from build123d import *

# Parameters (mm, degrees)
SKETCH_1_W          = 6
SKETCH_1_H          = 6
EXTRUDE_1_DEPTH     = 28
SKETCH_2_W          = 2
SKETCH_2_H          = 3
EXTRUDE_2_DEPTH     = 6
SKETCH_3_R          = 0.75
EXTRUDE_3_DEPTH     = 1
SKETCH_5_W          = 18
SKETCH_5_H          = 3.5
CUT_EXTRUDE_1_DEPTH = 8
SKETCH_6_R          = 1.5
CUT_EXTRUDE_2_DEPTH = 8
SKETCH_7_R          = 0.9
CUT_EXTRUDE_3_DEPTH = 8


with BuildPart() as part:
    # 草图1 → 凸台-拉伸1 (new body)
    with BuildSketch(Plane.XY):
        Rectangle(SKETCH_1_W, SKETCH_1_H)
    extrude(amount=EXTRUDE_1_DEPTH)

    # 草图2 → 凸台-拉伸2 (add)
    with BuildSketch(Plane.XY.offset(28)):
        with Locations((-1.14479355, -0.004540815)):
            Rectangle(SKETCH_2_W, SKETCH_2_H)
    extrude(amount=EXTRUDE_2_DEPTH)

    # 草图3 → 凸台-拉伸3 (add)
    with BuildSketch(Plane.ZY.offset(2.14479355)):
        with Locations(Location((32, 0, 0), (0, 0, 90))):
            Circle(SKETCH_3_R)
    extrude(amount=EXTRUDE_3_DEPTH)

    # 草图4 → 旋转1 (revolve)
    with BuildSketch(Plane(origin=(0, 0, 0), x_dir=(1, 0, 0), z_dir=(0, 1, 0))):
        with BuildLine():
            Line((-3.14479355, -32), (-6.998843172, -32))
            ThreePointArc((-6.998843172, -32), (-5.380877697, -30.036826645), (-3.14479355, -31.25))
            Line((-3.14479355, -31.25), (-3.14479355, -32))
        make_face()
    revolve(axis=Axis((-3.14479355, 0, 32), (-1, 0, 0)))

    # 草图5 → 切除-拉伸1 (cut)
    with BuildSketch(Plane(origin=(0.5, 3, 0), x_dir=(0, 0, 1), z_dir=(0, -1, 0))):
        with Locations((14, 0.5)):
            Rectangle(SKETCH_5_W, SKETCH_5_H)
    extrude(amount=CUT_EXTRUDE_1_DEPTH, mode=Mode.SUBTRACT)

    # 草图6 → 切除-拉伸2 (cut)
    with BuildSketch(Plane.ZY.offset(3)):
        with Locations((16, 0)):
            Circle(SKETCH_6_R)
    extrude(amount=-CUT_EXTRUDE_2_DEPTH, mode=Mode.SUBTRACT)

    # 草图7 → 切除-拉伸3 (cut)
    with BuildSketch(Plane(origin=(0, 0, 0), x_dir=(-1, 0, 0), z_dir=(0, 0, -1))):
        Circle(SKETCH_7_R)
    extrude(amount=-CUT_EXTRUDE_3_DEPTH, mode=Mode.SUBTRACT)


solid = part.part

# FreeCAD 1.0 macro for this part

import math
import FreeCAD as App
import Part
import Sketcher
from FreeCAD import Vector
Q = App.Units.Quantity

doc = App.newDocument("Part")
params = doc.addObject("Spreadsheet::Sheet", "Params")
for row, (alias, value) in enumerate([
    ("sketch1_width", "6 mm"),
    ("pad1_length", "28 mm"),
    ("sketch2_width", "2 mm"),
    ("sketch2_height", "3 mm"),
    ("pad2_length", "6 mm"),
    ("sketch3_diameter", "1.5 mm"),
    ("pad3_length", "1 mm"),
    ("sketch4_radius", "2 mm"),
    ("sketch4_height", "0.75 mm"),
    ("revolution_angle", "360 deg"),
    ("sketch5_height", "18 mm"),
    ("sketch5_width", "3.5 mm"),
    ("pocket1_length", "8 mm"),
    ("sketch6_diameter", "3 mm"),
    ("pocket2_length", "8 mm"),
    ("sketch7_diameter", "1.8 mm"),
    ("pocket3_length", "8 mm"),
], start=1):
    params.set(f"A{row}", alias)
    params.set(f"B{row}", "=" + value)
    params.setAlias(f"B{row}", alias)

body = doc.addObject("PartDesign::Body", "Body")

# Sketch on XY plane
sketch1 = doc.addObject("Sketcher::SketchObject", "Sketch")
body.addObject(sketch1)
sketch1.AttachmentSupport = (doc.XY_Plane, [""])
sketch1.MapMode = "FlatFace"
sketch1.addGeometry([
    Part.LineSegment(Vector(-3, 3, 0), Vector(-3, -3, 0)),
    Part.LineSegment(Vector(-3, -3, 0), Vector(3, -3, 0)),
    Part.LineSegment(Vector(3, -3, 0), Vector(3, 3, 0)),
    Part.LineSegment(Vector(3, 3, 0), Vector(-3, 3, 0)),
], False)
sketch1.addConstraint([
    Sketcher.Constraint("Coincident", 0, 2, 1, 1),
    Sketcher.Constraint("Coincident", 1, 2, 2, 1),
    Sketcher.Constraint("Coincident", 2, 2, 3, 1),
    Sketcher.Constraint("Coincident", 3, 2, 0, 1),
    Sketcher.Constraint("Vertical", 0),
    Sketcher.Constraint("Horizontal", 1),
    Sketcher.Constraint("Vertical", 2),
    Sketcher.Constraint("Horizontal", 3),
    Sketcher.Constraint("Symmetric", 0, 2, 2, 2, -1, 1),
    Sketcher.Constraint("Equal", 3, 0),
    Sketcher.Constraint("DistanceX", 1, 1, 1, 2, Q("6 mm")),
])
sketch1.setExpression("Constraints[10]", "Params.sketch1_width")
pad1 = doc.addObject("PartDesign::Pad", "Pad")
body.addObject(pad1)
pad1.Profile = sketch1
pad1.setExpression("Length", "Params.pad1_length")

# Sketch on XY plane
sketch2 = doc.addObject("Sketcher::SketchObject", "Sketch001")
body.addObject(sketch2)
sketch2.AttachmentSupport = (doc.XY_Plane, [""])
sketch2.MapMode = "FlatFace"
sketch2.AttachmentOffset = App.Placement(Vector(0, 0, 28), App.Rotation())
sketch2.addGeometry([
    Part.LineSegment(Vector(-2.1, 1.5, 0), Vector(-2.1, -1.5, 0)),
    Part.LineSegment(Vector(-2.1, -1.5, 0), Vector(-0.1, -1.5, 0)),
    Part.LineSegment(Vector(-0.1, -1.5, 0), Vector(-0.1, 1.5, 0)),
    Part.LineSegment(Vector(-0.1, 1.5, 0), Vector(-2.1, 1.5, 0)),
], False)
sketch2.addConstraint([
    Sketcher.Constraint("Coincident", 0, 2, 1, 1),
    Sketcher.Constraint("Coincident", 1, 2, 2, 1),
    Sketcher.Constraint("Coincident", 2, 2, 3, 1),
    Sketcher.Constraint("Coincident", 3, 2, 0, 1),
    Sketcher.Constraint("Vertical", 0),
    Sketcher.Constraint("Horizontal", 1),
    Sketcher.Constraint("Vertical", 2),
    Sketcher.Constraint("Horizontal", 3),
    Sketcher.Constraint("DistanceX", 1, 1, 1, 2, Q("2 mm")),
    Sketcher.Constraint("DistanceY", 0, 2, 0, 1, Q("3 mm")),
    Sketcher.Constraint("DistanceY", 0, 2, -1, 1, Q("1.504541 mm")),
    Sketcher.Constraint("DistanceX", 0, 2, -1, 1, Q("2.144794 mm")),
])
sketch2.setExpression("Constraints[8]", "Params.sketch2_width")
sketch2.setExpression("Constraints[9]", "Params.sketch2_height")
pad2 = doc.addObject("PartDesign::Pad", "Pad001")
body.addObject(pad2)
pad2.Profile = sketch2
pad2.setExpression("Length", "Params.pad2_length")

# Sketch on YZ plane
sketch3 = doc.addObject("Sketcher::SketchObject", "Sketch002")
body.addObject(sketch3)
sketch3.AttachmentSupport = (doc.YZ_Plane, [""])
sketch3.MapMode = "FlatFace"
sketch3.AttachmentOffset = App.Placement(Vector(0, 0, -2.144794), App.Rotation())
sketch3.addGeometry(Part.Circle(Vector(0, 32, 0), Vector(0, 0, 1), 0.8), False)
sketch3.addConstraint([
    Sketcher.Constraint("PointOnObject", 0, 3, -2),
    Sketcher.Constraint("Diameter", 0, Q("1.5 mm")),
    Sketcher.Constraint("DistanceY", -1, 1, 0, 3, Q("32 mm")),
])
sketch3.setExpression("Constraints[1]", "Params.sketch3_diameter")
pad3 = doc.addObject("PartDesign::Pad", "Pad002")
body.addObject(pad3)
pad3.Profile = sketch3
pad3.setExpression("Length", "Params.pad3_length")
pad3.Reversed = True

# Sketch on XZ plane
sketch4 = doc.addObject("Sketcher::SketchObject", "Sketch003")
body.addObject(sketch4)
sketch4.AttachmentSupport = (doc.XZ_Plane, [""])
sketch4.MapMode = "FlatFace"
sketch4.addGeometry([
    Part.LineSegment(Vector(-7, 32, 0), Vector(-3.1, 32, 0)),
    Part.LineSegment(Vector(-3.1, 32, 0), Vector(-3.1, 31.2, 0)),
    Part.ArcOfCircle(Part.Circle(Vector(-5, 32, 0), Vector(0, 0, 1), 2), math.radians(180), math.radians(338)),
], False)
sketch4.addGeometry(Part.LineSegment(Vector(-3.1, 32, 0), Vector(-7, 32, 0)), True)  # axis
sketch4.addConstraint([
    Sketcher.Constraint("Coincident", 0, 2, 1, 1),
    Sketcher.Constraint("Coincident", 1, 2, 2, 2),
    Sketcher.Constraint("Coincident", 2, 1, 0, 1),
    Sketcher.Constraint("Horizontal", 0),
    Sketcher.Constraint("Vertical", 1),
    Sketcher.Constraint("Horizontal", 3),
    Sketcher.Constraint("Coincident", 3, 1, 0, 2),
    Sketcher.Constraint("Horizontal", 2, 3, 0, 2),
    Sketcher.Constraint("Equal", 0, 3),
    Sketcher.Constraint("Radius", 2, Q("2 mm")),
    Sketcher.Constraint("DistanceY", -1, 1, 2, 3, Q("32 mm")),
    Sketcher.Constraint("DistanceY", 1, 2, 1, 1, Q("0.75 mm")),
    Sketcher.Constraint("DistanceX", 2, 3, -1, 1, Q("4.998843 mm")),
])
sketch4.setExpression("Constraints[9]", "Params.sketch4_radius")
sketch4.setExpression("Constraints[11]", "Params.sketch4_height")
revolution = doc.addObject("PartDesign::Revolution", "Revolution")
body.addObject(revolution)
revolution.Profile = sketch4
revolution.ReferenceAxis = (sketch4, ["Axis0"])
revolution.setExpression("Angle", "Params.revolution_angle")

# Sketch on XZ plane
sketch5 = doc.addObject("Sketcher::SketchObject", "Sketch004")
body.addObject(sketch5)
sketch5.AttachmentSupport = (doc.XZ_Plane, [""])
sketch5.MapMode = "FlatFace"
sketch5.AttachmentOffset = App.Placement(Vector(0, 0, -3), App.Rotation())
sketch5.addGeometry([
    Part.LineSegment(Vector(-1.8, 5, 0), Vector(1.8, 5, 0)),
    Part.LineSegment(Vector(1.8, 5, 0), Vector(1.8, 23, 0)),
    Part.LineSegment(Vector(1.8, 23, 0), Vector(-1.8, 23, 0)),
    Part.LineSegment(Vector(-1.8, 23, 0), Vector(-1.8, 5, 0)),
], False)
sketch5.addConstraint([
    Sketcher.Constraint("Coincident", 0, 2, 1, 1),
    Sketcher.Constraint("Coincident", 1, 2, 2, 1),
    Sketcher.Constraint("Coincident", 2, 2, 3, 1),
    Sketcher.Constraint("Coincident", 3, 2, 0, 1),
    Sketcher.Constraint("Horizontal", 0),
    Sketcher.Constraint("Vertical", 1),
    Sketcher.Constraint("Horizontal", 2),
    Sketcher.Constraint("Vertical", 3),
    Sketcher.Constraint("DistanceY", 1, 1, 1, 2, Q("18 mm")),
    Sketcher.Constraint("DistanceX", 0, 1, 0, 2, Q("3.5 mm")),
    Sketcher.Constraint("DistanceY", -1, 1, 0, 2, Q("5 mm")),
    Sketcher.Constraint("DistanceX", -1, 1, 0, 2, Q("1.75 mm")),
])
sketch5.setExpression("Constraints[8]", "Params.sketch5_height")
sketch5.setExpression("Constraints[9]", "Params.sketch5_width")
pocket1 = doc.addObject("PartDesign::Pocket", "Pocket")
body.addObject(pocket1)
pocket1.Profile = sketch5
pocket1.setExpression("Length", "Params.pocket1_length")
pocket1.Reversed = True

# Sketch on YZ plane
sketch6 = doc.addObject("Sketcher::SketchObject", "Sketch005")
body.addObject(sketch6)
sketch6.AttachmentSupport = (doc.YZ_Plane, [""])
sketch6.MapMode = "FlatFace"
sketch6.AttachmentOffset = App.Placement(Vector(0, 0, -3), App.Rotation())
sketch6.addGeometry(Part.Circle(Vector(0, 16, 0), Vector(0, 0, 1), 1.5), False)
sketch6.addConstraint([
    Sketcher.Constraint("PointOnObject", 0, 3, -2),
    Sketcher.Constraint("Diameter", 0, Q("3 mm")),
    Sketcher.Constraint("DistanceY", -1, 1, 0, 3, Q("16 mm")),
])
sketch6.setExpression("Constraints[1]", "Params.sketch6_diameter")
pocket2 = doc.addObject("PartDesign::Pocket", "Pocket001")
body.addObject(pocket2)
pocket2.Profile = sketch6
pocket2.setExpression("Length", "Params.pocket2_length")
pocket2.Reversed = True

# Sketch on XY plane
sketch7 = doc.addObject("Sketcher::SketchObject", "Sketch006")
body.addObject(sketch7)
sketch7.AttachmentSupport = (doc.XY_Plane, [""])
sketch7.MapMode = "FlatFace"
sketch7.addGeometry(Part.Circle(Vector(0, 0, 0), Vector(0, 0, 1), 0.9), False)
sketch7.addConstraint([
    Sketcher.Constraint("Coincident", 0, 3, -1, 1),
    Sketcher.Constraint("Diameter", 0, Q("1.8 mm")),
])
sketch7.setExpression("Constraints[1]", "Params.sketch7_diameter")
pocket3 = doc.addObject("PartDesign::Pocket", "Pocket002")
body.addObject(pocket3)
pocket3.Profile = sketch7
pocket3.setExpression("Length", "Params.pocket3_length")
pocket3.Reversed = True

doc.recompute()
